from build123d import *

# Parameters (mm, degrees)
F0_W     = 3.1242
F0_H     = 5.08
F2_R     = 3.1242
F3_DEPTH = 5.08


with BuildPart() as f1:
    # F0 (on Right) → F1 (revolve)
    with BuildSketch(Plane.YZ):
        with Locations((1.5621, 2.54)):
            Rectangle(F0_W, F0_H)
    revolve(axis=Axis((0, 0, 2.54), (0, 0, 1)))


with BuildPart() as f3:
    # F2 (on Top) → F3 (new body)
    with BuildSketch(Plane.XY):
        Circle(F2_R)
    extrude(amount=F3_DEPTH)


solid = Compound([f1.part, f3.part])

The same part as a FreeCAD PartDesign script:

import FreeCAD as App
import Part
import Sketcher
from FreeCAD import Vector
Q = App.Units.Quantity

doc = App.newDocument("Part")
body = doc.addObject("PartDesign::Body", "Body")

# Sketch on YZ plane
sketch1 = doc.addObject("Sketcher::SketchObject", "Sketch")
body.addObject(sketch1)
sketch1.AttachmentSupport = (doc.YZ_Plane, [""])
sketch1.MapMode = "FlatFace"
sketch1.addGeometry(Part.LineSegment(Vector(0, 5.08, 0), Vector(0, 0, 0)), False)
sketch1.addGeometry(Part.LineSegment(Vector(0, 0, 0), Vector(3.1242, 0, 0)), False)
sketch1.addGeometry(Part.LineSegment(Vector(3.1242, 0, 0), Vector(3.1242, 5.08, 0)), False)
sketch1.addGeometry(Part.LineSegment(Vector(3.1242, 5.08, 0), Vector(0, 5.08, 0)), False)
sketch1.addConstraint(Sketcher.Constraint("Coincident", 0, 2, 1, 1))
sketch1.addConstraint(Sketcher.Constraint("Coincident", 1, 2, 2, 1))
sketch1.addConstraint(Sketcher.Constraint("Coincident", 2, 2, 3, 1))
sketch1.addConstraint(Sketcher.Constraint("Coincident", 3, 2, 0, 1))
sketch1.addConstraint(Sketcher.Constraint("Vertical", 0))
sketch1.addConstraint(Sketcher.Constraint("Horizontal", 1))
sketch1.addConstraint(Sketcher.Constraint("Vertical", 2))
sketch1.addConstraint(Sketcher.Constraint("Horizontal", 3))
sketch1.addConstraint(Sketcher.Constraint("Coincident", 0, 2, -1, 1))
sketch1.addConstraint(Sketcher.Constraint("DistanceY", 0, 2, 0, 1, Q("0.2 in")))
sketch1.addConstraint(Sketcher.Constraint("DistanceX", 1, 1, 1, 2, Q("0.123 in")))
revolution = doc.addObject("PartDesign::Revolution", "Revolution")
body.addObject(revolution)
revolution.Profile = sketch1
revolution.ReferenceAxis = (sketch1, ["V_Axis"])
revolution.Angle = 360
body2 = doc.addObject("PartDesign::Body", "Body001")

# Sketch on XY plane
sketch2 = doc.addObject("Sketcher::SketchObject", "Sketch001")
body2.addObject(sketch2)
sketch2.AttachmentSupport = (doc.getObject("XY_Plane001"), [""])
sketch2.MapMode = "FlatFace"
sketch2.addGeometry(Part.Circle(Vector(0, 0, 0), Vector(0, 0, 1), 3.1242), False)
sketch2.addConstraint(Sketcher.Constraint("Coincident", 0, 3, -1, 1))
sketch2.addConstraint(Sketcher.Constraint("Diameter", 0, Q("0.246 in")))
pad1 = doc.addObject("PartDesign::Pad", "Pad")
body2.addObject(pad1)
pad1.Profile = sketch2
pad1.Length = Q("0.2 in")

doc.recompute()
